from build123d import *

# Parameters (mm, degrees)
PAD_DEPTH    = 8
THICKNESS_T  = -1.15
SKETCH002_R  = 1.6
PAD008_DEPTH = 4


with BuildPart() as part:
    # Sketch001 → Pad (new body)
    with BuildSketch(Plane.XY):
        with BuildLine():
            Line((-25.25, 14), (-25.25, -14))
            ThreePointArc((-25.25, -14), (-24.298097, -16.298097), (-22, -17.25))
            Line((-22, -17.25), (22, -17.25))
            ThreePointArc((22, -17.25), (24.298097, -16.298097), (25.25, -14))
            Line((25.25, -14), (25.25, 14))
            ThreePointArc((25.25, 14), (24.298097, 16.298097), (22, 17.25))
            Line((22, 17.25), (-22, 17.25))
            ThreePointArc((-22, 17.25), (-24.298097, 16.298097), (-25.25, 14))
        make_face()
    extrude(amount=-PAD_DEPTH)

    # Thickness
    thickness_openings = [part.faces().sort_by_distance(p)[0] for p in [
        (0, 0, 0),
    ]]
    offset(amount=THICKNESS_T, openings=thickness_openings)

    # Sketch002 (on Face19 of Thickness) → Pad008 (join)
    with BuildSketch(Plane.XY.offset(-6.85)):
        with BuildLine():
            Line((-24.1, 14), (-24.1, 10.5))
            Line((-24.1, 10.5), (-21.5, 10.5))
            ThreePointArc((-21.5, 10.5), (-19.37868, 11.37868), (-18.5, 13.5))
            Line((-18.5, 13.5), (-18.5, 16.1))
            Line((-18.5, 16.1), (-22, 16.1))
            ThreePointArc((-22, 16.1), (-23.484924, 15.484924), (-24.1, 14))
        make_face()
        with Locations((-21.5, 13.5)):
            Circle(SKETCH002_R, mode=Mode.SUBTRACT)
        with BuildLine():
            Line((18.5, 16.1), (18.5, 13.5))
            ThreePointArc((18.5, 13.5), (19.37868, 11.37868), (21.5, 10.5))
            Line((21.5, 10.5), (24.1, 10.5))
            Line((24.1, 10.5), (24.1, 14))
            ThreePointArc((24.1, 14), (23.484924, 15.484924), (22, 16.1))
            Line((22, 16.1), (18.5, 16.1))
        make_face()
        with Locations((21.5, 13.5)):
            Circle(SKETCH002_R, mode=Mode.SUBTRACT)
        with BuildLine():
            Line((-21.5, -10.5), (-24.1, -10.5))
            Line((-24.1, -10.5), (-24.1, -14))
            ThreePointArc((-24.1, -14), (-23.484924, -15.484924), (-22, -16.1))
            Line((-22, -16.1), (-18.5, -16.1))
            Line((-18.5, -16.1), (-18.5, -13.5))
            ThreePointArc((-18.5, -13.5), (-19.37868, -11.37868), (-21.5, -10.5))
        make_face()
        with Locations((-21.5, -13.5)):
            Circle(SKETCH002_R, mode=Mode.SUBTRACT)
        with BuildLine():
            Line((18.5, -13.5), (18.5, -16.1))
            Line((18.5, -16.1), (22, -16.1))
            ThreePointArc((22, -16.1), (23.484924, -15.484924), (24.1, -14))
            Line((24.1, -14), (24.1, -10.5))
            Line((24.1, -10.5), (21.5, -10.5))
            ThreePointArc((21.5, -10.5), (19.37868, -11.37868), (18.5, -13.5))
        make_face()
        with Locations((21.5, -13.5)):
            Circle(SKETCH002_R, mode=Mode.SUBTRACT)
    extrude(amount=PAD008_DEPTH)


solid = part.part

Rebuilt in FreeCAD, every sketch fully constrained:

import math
import FreeCAD as App
import Part
import Sketcher
Q = App.Units.Quantity


def faces_at(feature, points):
    """Names of the faces that lie closest to the given points."""
    faces = feature.Shape.Faces
    near = lambda p: min(range(len(faces)), key=lambda i: faces[i].distToShape(Part.Vertex(*p))[0])
    return sorted({f"Face{near(p) + 1}" for p in points})

doc = App.newDocument("Part")
body = doc.addObject("PartDesign::Body", "Body")

sketch1 = body.newObject("Sketcher::SketchObject", "Sketch")
sketch1.AttachmentSupport = (doc.getObject("XY_Plane"), [""])
sketch1.MapMode = "FlatFace"
sketch1.addGeometry([
    Part.LineSegment(App.Vector(-25.25, 14, 0), App.Vector(-25.25, -14, 0)),
    Part.ArcOfCircle(Part.Circle(App.Vector(-22, -14, 0), App.Vector(0, 0, 1), 3.25), math.radians(-179.999998), math.radians(-90.000002)),
    Part.LineSegment(App.Vector(-22, -17.25, 0), App.Vector(22, -17.25, 0)),
    Part.ArcOfCircle(Part.Circle(App.Vector(22, -14, 0), App.Vector(0, 0, 1), 3.25), math.radians(-89.999998), math.radians(-0.000002)),
    Part.LineSegment(App.Vector(25.25, -14, 0), App.Vector(25.25, 14, 0)),
    Part.ArcOfCircle(Part.Circle(App.Vector(22, 14, 0), App.Vector(0, 0, 1), 3.25), math.radians(0.000002), math.radians(89.999998)),
    Part.LineSegment(App.Vector(22, 17.25, 0), App.Vector(-22, 17.25, 0)),
    Part.ArcOfCircle(Part.Circle(App.Vector(-22, 14, 0), App.Vector(0, 0, 1), 3.25), math.radians(90.000002), math.radians(179.999998)),
], False)
sketch1.addConstraint([
    Sketcher.Constraint("Tangent", 0, 2, 1, 1),
    Sketcher.Constraint("Tangent", 1, 2, 2, 1),
    Sketcher.Constraint("Tangent", 2, 2, 3, 1),
    Sketcher.Constraint("Tangent", 3, 2, 4, 1),
    Sketcher.Constraint("Tangent", 4, 2, 5, 1),
    Sketcher.Constraint("Tangent", 5, 2, 6, 1),
    Sketcher.Constraint("Tangent", 6, 2, 7, 1),
    Sketcher.Constraint("Tangent", 7, 2, 0, 1),
    Sketcher.Constraint("Vertical", 0),
    Sketcher.Constraint("Horizontal", 2),
    Sketcher.Constraint("Vertical", 4),
    Sketcher.Constraint("Horizontal", 6),
    Sketcher.Constraint("Equal", 1, 3),
    Sketcher.Constraint("Equal", 3, 5),
    Sketcher.Constraint("Equal", 5, 7),
    Sketcher.Constraint("Symmetric", 1, 3, 5, 3, -1, 1),
    Sketcher.Constraint("DistanceX", 2, 1, 2, 2, Q("44 mm")),
    Sketcher.Constraint("DistanceY", 0, 2, 0, 1, Q("28 mm")),
    Sketcher.Constraint("Radius", 1, Q("3.25 mm")),
])
pad1 = body.newObject("PartDesign::Pad", "Pad")
pad1.Profile = sketch1
pad1.Length = 8
pad1.Reversed = True
doc.recompute()

thickness = body.newObject("PartDesign::Thickness", "Thickness")
thickness.Base = (pad1, faces_at(pad1, [(0, 0, 0)]))
thickness.Value = 1.15
thickness.Reversed = True
thickness.Join = "Arc"

sketch2 = body.newObject("Sketcher::SketchObject", "Sketch001")
sketch2.AttachmentSupport = (doc.getObject("XY_Plane"), [""])
sketch2.MapMode = "FlatFace"
sketch2.AttachmentOffset = App.Placement(App.Vector(0, 0, -6.85), App.Rotation())
sketch2.addGeometry([
    Part.LineSegment(App.Vector(-24.1, 14, 0), App.Vector(-24.1, 10.5, 0)),
    Part.LineSegment(App.Vector(-24.1, 10.5, 0), App.Vector(-21.5, 10.5, 0)),
    Part.ArcOfCircle(Part.Circle(App.Vector(-21.500001, 13.500001, 0), App.Vector(0, 0, 1), 3.000001), math.radians(-89.999978), math.radians(-0.000022)),
    Part.LineSegment(App.Vector(-18.5, 13.5, 0), App.Vector(-18.5, 16.1, 0)),
    Part.LineSegment(App.Vector(-18.5, 16.1, 0), App.Vector(-22, 16.1, 0)),
    Part.ArcOfCircle(Part.Circle(App.Vector(-21.999999, 13.999999, 0), App.Vector(0, 0, 1), 2.100001), math.radians(90.000022), math.radians(179.999978)),
    Part.Circle(App.Vector(-21.5, 13.5, 0), App.Vector(0, 0, 1), 1.6),
    Part.LineSegment(App.Vector(18.5, 16.1, 0), App.Vector(18.5, 13.5, 0)),
    Part.ArcOfCircle(Part.Circle(App.Vector(21.500001, 13.500001, 0), App.Vector(0, 0, 1), 3.000001), math.radians(-179.999978), math.radians(-90.000022)),
    Part.LineSegment(App.Vector(21.5, 10.5, 0), App.Vector(24.1, 10.5, 0)),
    Part.LineSegment(App.Vector(24.1, 10.5, 0), App.Vector(24.1, 14, 0)),
    Part.ArcOfCircle(Part.Circle(App.Vector(21.999999, 13.999999, 0), App.Vector(0, 0, 1), 2.100001), math.radians(0.000022), math.radians(89.999978)),
    Part.LineSegment(App.Vector(22, 16.1, 0), App.Vector(18.5, 16.1, 0)),
    Part.Circle(App.Vector(21.5, 13.5, 0), App.Vector(0, 0, 1), 1.6),
    Part.LineSegment(App.Vector(-21.5, -10.5, 0), App.Vector(-24.1, -10.5, 0)),
    Part.LineSegment(App.Vector(-24.1, -10.5, 0), App.Vector(-24.1, -14, 0)),
    Part.ArcOfCircle(Part.Circle(App.Vector(-21.999999, -13.999999, 0), App.Vector(0, 0, 1), 2.100001), math.radians(-179.999978), math.radians(-90.000022)),
    Part.LineSegment(App.Vector(-22, -16.1, 0), App.Vector(-18.5, -16.1, 0)),
    Part.LineSegment(App.Vector(-18.5, -16.1, 0), App.Vector(-18.5, -13.5, 0)),
    Part.ArcOfCircle(Part.Circle(App.Vector(-21.500001, -13.500001, 0), App.Vector(0, 0, 1), 3.000001), math.radians(0.000022), math.radians(89.999978)),
    Part.Circle(App.Vector(-21.5, -13.5, 0), App.Vector(0, 0, 1), 1.6),
    Part.LineSegment(App.Vector(18.5, -13.5, 0), App.Vector(18.5, -16.1, 0)),
    Part.LineSegment(App.Vector(18.5, -16.1, 0), App.Vector(22, -16.1, 0)),
    Part.ArcOfCircle(Part.Circle(App.Vector(21.999999, -13.999999, 0), App.Vector(0, 0, 1), 2.100001), math.radians(-89.999978), math.radians(-0.000022)),
    Part.LineSegment(App.Vector(24.1, -14, 0), App.Vector(24.1, -10.5, 0)),
    Part.LineSegment(App.Vector(24.1, -10.5, 0), App.Vector(21.5, -10.5, 0)),
    Part.ArcOfCircle(Part.Circle(App.Vector(21.500001, -13.500001, 0), App.Vector(0, 0, 1), 3.000001), math.radians(90.000022), math.radians(179.999978)),
    Part.Circle(App.Vector(21.5, -13.5, 0), App.Vector(0, 0, 1), 1.6),
], False)
sketch2.addConstraint([
    Sketcher.Constraint("Coincident", 0, 2, 1, 1),
    Sketcher.Constraint("Tangent", 1, 2, 2, 1),
    Sketcher.Constraint("Tangent", 2, 2, 3, 1),
    Sketcher.Constraint("Coincident", 3, 2, 4, 1),
    Sketcher.Constraint("Tangent", 4, 2, 5, 1),
    Sketcher.Constraint("Tangent", 5, 2, 0, 1),
    Sketcher.Constraint("Tangent", 7, 2, 8, 1),
    Sketcher.Constraint("Tangent", 8, 2, 9, 1),
    Sketcher.Constraint("Coincident", 9, 2, 10, 1),
    Sketcher.Constraint("Tangent", 10, 2, 11, 1),
    Sketcher.Constraint("Tangent", 11, 2, 12, 1),
    Sketcher.Constraint("Coincident", 12, 2, 7, 1),
    Sketcher.Constraint("Coincident", 14, 2, 15, 1),
    Sketcher.Constraint("Tangent", 15, 2, 16, 1),
    Sketcher.Constraint("Tangent", 16, 2, 17, 1),
    Sketcher.Constraint("Coincident", 17, 2, 18, 1),
    Sketcher.Constraint("Tangent", 18, 2, 19, 1),
    Sketcher.Constraint("Tangent", 19, 2, 14, 1),
    Sketcher.Constraint("Coincident", 21, 2, 22, 1),
    Sketcher.Constraint("Tangent", 22, 2, 23, 1),
    Sketcher.Constraint("Tangent", 23, 2, 24, 1),
    Sketcher.Constraint("Coincident", 24, 2, 25, 1),
    Sketcher.Constraint("Tangent", 25, 2, 26, 1),
    Sketcher.Constraint("Tangent", 26, 2, 21, 1),
    Sketcher.Constraint("Vertical", 0),
    Sketcher.Constraint("Horizontal", 1),
    Sketcher.Constraint("Vertical", 3),
    Sketcher.Constraint("Horizontal", 4),
    Sketcher.Constraint("Vertical", 7),
    Sketcher.Constraint("Horizontal", 9),
    Sketcher.Constraint("Vertical", 10),
    Sketcher.Constraint("Horizontal", 12),
    Sketcher.Constraint("Horizontal", 14),
    Sketcher.Constraint("Vertical", 15),
    Sketcher.Constraint("Horizontal", 17),
    Sketcher.Constraint("Vertical", 18),
    Sketcher.Constraint("Vertical", 21),
    Sketcher.Constraint("Horizontal", 22),
    Sketcher.Constraint("Vertical", 24),
    Sketcher.Constraint("Horizontal", 25),
    Sketcher.Constraint("Coincident", 6, 3, 2, 3),
    Sketcher.Constraint("Coincident", 13, 3, 8, 3),
    Sketcher.Constraint("Coincident", 20, 3, 19, 3),
    Sketcher.Constraint("Coincident", 27, 3, 26, 3),
    Sketcher.Constraint("Equal", 2, 8),
    Sketcher.Constraint("Equal", 5, 11),
    Sketcher.Constraint("Equal", 6, 13),
    Sketcher.Constraint("Equal", 11, 16),
    Sketcher.Constraint("Equal", 8, 19),
    Sketcher.Constraint("Equal", 13, 20),
    Sketcher.Constraint("Equal", 16, 23),
    Sketcher.Constraint("Equal", 19, 26),
    Sketcher.Constraint("Equal", 20, 27),
    Sketcher.Constraint("Symmetric", 11, 3, 16, 3, -1, 1),
    Sketcher.Constraint("Symmetric", 8, 3, 19, 3, -1, 1),
    Sketcher.Constraint("Symmetric", 5, 3, 23, 3, -1, 1),
    Sketcher.Constraint("Symmetric", 2, 3, 26, 3, -1, 1),
    Sketcher.Constraint("Symmetric", 2, 3, 8, 3, -2),
    Sketcher.Constraint("Symmetric", 5, 3, 11, 3, -2),
    Sketcher.Constraint("Equal", 22, 0),
    Sketcher.Constraint("Radius", 2, Q("3.000001 mm")),
    Sketcher.Constraint("Diameter", 6, Q("3.2 mm")),
    Sketcher.Constraint("Radius", 5, Q("2.100001 mm")),
    Sketcher.Constraint("DistanceX", 1, 1, 1, 2, Q("2.6 mm")),
    Sketcher.Constraint("DistanceX", 5, 3, -1, 1, Q("21.999999 mm")),
    Sketcher.Constraint("DistanceY", -1, 1, 5, 3, Q("13.999999 mm")),
])
pad2 = body.newObject("PartDesign::Pad", "Pad001")
pad2.Profile = sketch2
pad2.Length = 4

doc.recompute()
